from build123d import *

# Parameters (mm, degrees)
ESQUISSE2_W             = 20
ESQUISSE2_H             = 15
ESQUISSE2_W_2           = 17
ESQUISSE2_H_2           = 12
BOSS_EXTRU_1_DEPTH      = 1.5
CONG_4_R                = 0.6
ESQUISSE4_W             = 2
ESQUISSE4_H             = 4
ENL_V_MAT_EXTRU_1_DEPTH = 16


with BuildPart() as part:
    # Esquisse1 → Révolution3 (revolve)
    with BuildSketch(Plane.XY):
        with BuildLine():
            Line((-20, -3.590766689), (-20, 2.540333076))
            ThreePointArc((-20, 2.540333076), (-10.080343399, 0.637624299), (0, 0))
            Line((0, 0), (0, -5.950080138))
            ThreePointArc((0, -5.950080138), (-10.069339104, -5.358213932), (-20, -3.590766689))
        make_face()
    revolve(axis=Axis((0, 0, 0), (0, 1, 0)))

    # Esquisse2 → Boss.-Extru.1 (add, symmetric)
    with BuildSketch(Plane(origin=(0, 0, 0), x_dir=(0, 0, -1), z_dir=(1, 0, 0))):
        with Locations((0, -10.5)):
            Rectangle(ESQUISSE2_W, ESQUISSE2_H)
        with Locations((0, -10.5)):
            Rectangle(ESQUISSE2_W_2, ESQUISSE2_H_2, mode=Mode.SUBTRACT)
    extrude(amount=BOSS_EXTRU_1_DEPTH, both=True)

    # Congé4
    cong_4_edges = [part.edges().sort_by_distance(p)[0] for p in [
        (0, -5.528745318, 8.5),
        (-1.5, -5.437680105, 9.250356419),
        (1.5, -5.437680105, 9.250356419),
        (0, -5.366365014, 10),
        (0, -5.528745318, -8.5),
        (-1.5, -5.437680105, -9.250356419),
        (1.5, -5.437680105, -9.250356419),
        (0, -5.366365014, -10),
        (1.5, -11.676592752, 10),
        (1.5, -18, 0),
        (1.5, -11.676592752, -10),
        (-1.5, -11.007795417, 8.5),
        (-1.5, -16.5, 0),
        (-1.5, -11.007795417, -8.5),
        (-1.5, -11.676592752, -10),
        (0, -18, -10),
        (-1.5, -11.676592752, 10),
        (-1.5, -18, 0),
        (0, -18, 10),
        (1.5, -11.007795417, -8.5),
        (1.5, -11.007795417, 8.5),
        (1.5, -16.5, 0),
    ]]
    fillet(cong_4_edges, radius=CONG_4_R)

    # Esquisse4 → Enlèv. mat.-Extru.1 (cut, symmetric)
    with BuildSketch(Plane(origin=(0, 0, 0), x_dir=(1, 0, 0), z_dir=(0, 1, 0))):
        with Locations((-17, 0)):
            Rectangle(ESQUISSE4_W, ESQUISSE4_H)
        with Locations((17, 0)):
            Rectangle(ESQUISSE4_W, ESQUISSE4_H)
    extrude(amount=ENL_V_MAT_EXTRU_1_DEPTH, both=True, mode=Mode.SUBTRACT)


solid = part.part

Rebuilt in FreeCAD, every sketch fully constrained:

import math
import FreeCAD as App
import Part
import Sketcher


def edges_at(feature, points):
    """Names of the edges that pass closest to the given points."""
    edges = feature.Shape.Edges
    near = lambda p: min(range(len(edges)), key=lambda i: edges[i].distToShape(Part.Vertex(*p))[0])
    return sorted({f"Edge{near(p) + 1}" for p in points})

doc = App.newDocument("Part")
params = doc.addObject("Spreadsheet::Sheet", "Params")
for row, (alias, value) in enumerate([
    ("sketch1_radius", "80 mm"),
    ("revolution_angle", "360 deg"),
    ("sketch2_width", "15 mm"),
    ("sketch2_width2", "12 mm"),
    ("sketch2_height", "20 mm"),
    ("sketch2_height2", "17 mm"),
    ("pad1_length", "3 mm"),
    ("fillet_radius", "0.6 mm"),
    ("sketch3_width", "2 mm"),
    ("sketch3_height", "4 mm"),
    ("pocket1_length", "32 mm"),
], start=1):
    params.set(f"A{row}", alias)
    params.set(f"B{row}", "=" + value)
    params.setAlias(f"B{row}", alias)

body = doc.addObject("PartDesign::Body", "Body")

sketch1 = body.newObject("Sketcher::SketchObject", "Sketch")
sketch1.AttachmentSupport = (doc.getObject("XY_Plane"), [""])
sketch1.MapMode = "FlatFace"
sketch1.addGeometry([
    Part.LineSegment(App.Vector(-20, 3, 0), App.Vector(-20, -4, 0)),
    Part.ArcOfCircle(Part.Circle(App.Vector(0, 80, 0), App.Vector(0, 0, 1), 86), math.radians(-103.46), math.radians(-90)),
    Part.LineSegment(App.Vector(0, -6, 0), App.Vector(0, 0, 0)),
    Part.ArcOfCircle(Part.Circle(App.Vector(0, 80, 0), App.Vector(0, 0, 1), 80), math.radians(-104.48), math.radians(-90)),
], False)
sketch1.addConstraint([
    Sketcher.Constraint("Coincident", 0, 2, 1, 1),
    Sketcher.Constraint("Coincident", 1, 2, 2, 1),
    Sketcher.Constraint("Coincident", 2, 2, 3, 2),
    Sketcher.Constraint("Coincident", 3, 1, 0, 1),
    Sketcher.Constraint("Vertical", 0),
    Sketcher.Constraint("Vertical", 2),
    Sketcher.Constraint("Coincident", 2, 2, -1, 1),
    Sketcher.Constraint("Coincident", 3, 3, 1, 3),
    Sketcher.Constraint("PointOnObject", 1, 3, -2),
    Sketcher.Constraint("Radius", 3, 80.0),
    Sketcher.Constraint("DistanceX", 0, 2, -1, 1, 20.0),
    Sketcher.Constraint("Radius", 1, 85.95008),
])
sketch1.setExpression("Constraints[9]", "Params.sketch1_radius")
revolution = body.newObject("PartDesign::Revolution", "Revolution")
revolution.Profile = sketch1
revolution.ReferenceAxis = (sketch1, ["V_Axis"])
revolution.setExpression("Angle", "Params.revolution_angle")

sketch2 = body.newObject("Sketcher::SketchObject", "Sketch001")
sketch2.AttachmentSupport = (doc.getObject("YZ_Plane"), [""])
sketch2.MapMode = "FlatFace"
sketch2.addGeometry([
    Part.LineSegment(App.Vector(-3, 10, 0), App.Vector(-18, 10, 0)),
    Part.LineSegment(App.Vector(-18, 10, 0), App.Vector(-18, -10, 0)),
    Part.LineSegment(App.Vector(-18, -10, 0), App.Vector(-3, -10, 0)),
    Part.LineSegment(App.Vector(-3, -10, 0), App.Vector(-3, 10, 0)),
    Part.LineSegment(App.Vector(-16, -8, 0), App.Vector(-16, 8, 0)),
    Part.LineSegment(App.Vector(-16, 8, 0), App.Vector(-4, 8, 0)),
    Part.LineSegment(App.Vector(-4, 8, 0), App.Vector(-4, -8, 0)),
    Part.LineSegment(App.Vector(-4, -8, 0), App.Vector(-16, -8, 0)),
], False)
sketch2.addConstraint([
    Sketcher.Constraint("Coincident", 0, 2, 1, 1),
    Sketcher.Constraint("Coincident", 1, 2, 2, 1),
    Sketcher.Constraint("Coincident", 2, 2, 3, 1),
    Sketcher.Constraint("Coincident", 3, 2, 0, 1),
    Sketcher.Constraint("Coincident", 4, 2, 5, 1),
    Sketcher.Constraint("Coincident", 5, 2, 6, 1),
    Sketcher.Constraint("Coincident", 6, 2, 7, 1),
    Sketcher.Constraint("Coincident", 7, 2, 4, 1),
    Sketcher.Constraint("Horizontal", 0),
    Sketcher.Constraint("Vertical", 1),
    Sketcher.Constraint("Horizontal", 2),
    Sketcher.Constraint("Vertical", 3),
    Sketcher.Constraint("Vertical", 4),
    Sketcher.Constraint("Horizontal", 5),
    Sketcher.Constraint("Vertical", 6),
    Sketcher.Constraint("Horizontal", 7),
    Sketcher.Constraint("DistanceX", 0, 2, 0, 1, 15.0),
    Sketcher.Constraint("DistanceX", 5, 1, 5, 2, 12.0),
    Sketcher.Constraint("DistanceY", 1, 2, 1, 1, 20.0),
    Sketcher.Constraint("DistanceY", 4, 1, 4, 2, 17.0),
    Sketcher.Constraint("DistanceX", 0, 2, -1, 1, 18.0),
    Sketcher.Constraint("DistanceY", -1, 1, 0, 2, 10.0),
    Sketcher.Constraint("DistanceX", 4, 2, -1, 1, 16.5),
    Sketcher.Constraint("DistanceY", -1, 1, 4, 2, 8.5),
])
sketch2.setExpression("Constraints[16]", "Params.sketch2_width")
sketch2.setExpression("Constraints[17]", "Params.sketch2_width2")
sketch2.setExpression("Constraints[18]", "Params.sketch2_height")
sketch2.setExpression("Constraints[19]", "Params.sketch2_height2")
pad1 = body.newObject("PartDesign::Pad", "Pad")
pad1.Profile = sketch2
pad1.setExpression("Length", "Params.pad1_length")
pad1.Midplane = True
doc.recompute()

fillet = body.newObject("PartDesign::Fillet", "Fillet")
fillet.Base = (pad1, edges_at(pad1, [
    (0, -5.529, 8.5),
    (-1.5, -5.438, 9.25),
    (1.5, -5.438, 9.25),
    (0, -5.366, 10),
    (0, -5.529, -8.5),
    (-1.5, -5.438, -9.25),
    (1.5, -5.438, -9.25),
    (0, -5.366, -10),
    (1.5, -11.677, 10),
    (1.5, -18, 0),
    (1.5, -11.677, -10),
    (-1.5, -11.008, 8.5),
    (-1.5, -16.5, 0),
    (-1.5, -11.008, -8.5),
    (-1.5, -11.677, -10),
    (0, -18, -10),
    (-1.5, -11.677, 10),
    (-1.5, -18, 0),
    (0, -18, 10),
    (1.5, -11.008, -8.5),
    (1.5, -11.008, 8.5),
    (1.5, -16.5, 0),
]))
fillet.setExpression("Radius", "Params.fillet_radius")

sketch3 = body.newObject("Sketcher::SketchObject", "Sketch002")
sketch3.AttachmentSupport = (doc.getObject("XZ_Plane"), [""])
sketch3.MapMode = "FlatFace"
sketch3.addGeometry([
    Part.LineSegment(App.Vector(-18, -2, 0), App.Vector(-18, 2, 0)),
    Part.LineSegment(App.Vector(-18, 2, 0), App.Vector(-16, 2, 0)),
    Part.LineSegment(App.Vector(-16, 2, 0), App.Vector(-16, -2, 0)),
    Part.LineSegment(App.Vector(-16, -2, 0), App.Vector(-18, -2, 0)),
    Part.LineSegment(App.Vector(16, -2, 0), App.Vector(16, 2, 0)),
    Part.LineSegment(App.Vector(16, 2, 0), App.Vector(18, 2, 0)),
    Part.LineSegment(App.Vector(18, 2, 0), App.Vector(18, -2, 0)),
    Part.LineSegment(App.Vector(18, -2, 0), App.Vector(16, -2, 0)),
], False)
sketch3.addConstraint([
    Sketcher.Constraint("Coincident", 0, 2, 1, 1),
    Sketcher.Constraint("Coincident", 1, 2, 2, 1),
    Sketcher.Constraint("Coincident", 2, 2, 3, 1),
    Sketcher.Constraint("Coincident", 3, 2, 0, 1),
    Sketcher.Constraint("Coincident", 4, 2, 5, 1),
    Sketcher.Constraint("Coincident", 5, 2, 6, 1),
    Sketcher.Constraint("Coincident", 6, 2, 7, 1),
    Sketcher.Constraint("Coincident", 7, 2, 4, 1),
    Sketcher.Constraint("Vertical", 0),
    Sketcher.Constraint("Horizontal", 1),
    Sketcher.Constraint("Vertical", 2),
    Sketcher.Constraint("Horizontal", 3),
    Sketcher.Constraint("Vertical", 4),
    Sketcher.Constraint("Horizontal", 5),
    Sketcher.Constraint("Vertical", 6),
    Sketcher.Constraint("Horizontal", 7),
    Sketcher.Constraint("Symmetric", 2, 2, 4, 2, -1, 1),
    Sketcher.Constraint("Symmetric", 0, 2, 6, 2, -1, 1),
    Sketcher.Constraint("Horizontal", 1, 2, 4, 2),
    Sketcher.Constraint("DistanceX", 1, 1, 1, 2, 2.0),
    Sketcher.Constraint("DistanceY", 0, 1, 0, 2, 4.0),
    Sketcher.Constraint("DistanceX", 0, 2, -1, 1, 18.0),
])
sketch3.setExpression("Constraints[19]", "Params.sketch3_width")
sketch3.setExpression("Constraints[20]", "Params.sketch3_height")
pocket1 = body.newObject("PartDesign::Pocket", "Pocket")
pocket1.Profile = sketch3
pocket1.setExpression("Length", "Params.pocket1_length")
pocket1.Midplane = True

doc.recompute()
